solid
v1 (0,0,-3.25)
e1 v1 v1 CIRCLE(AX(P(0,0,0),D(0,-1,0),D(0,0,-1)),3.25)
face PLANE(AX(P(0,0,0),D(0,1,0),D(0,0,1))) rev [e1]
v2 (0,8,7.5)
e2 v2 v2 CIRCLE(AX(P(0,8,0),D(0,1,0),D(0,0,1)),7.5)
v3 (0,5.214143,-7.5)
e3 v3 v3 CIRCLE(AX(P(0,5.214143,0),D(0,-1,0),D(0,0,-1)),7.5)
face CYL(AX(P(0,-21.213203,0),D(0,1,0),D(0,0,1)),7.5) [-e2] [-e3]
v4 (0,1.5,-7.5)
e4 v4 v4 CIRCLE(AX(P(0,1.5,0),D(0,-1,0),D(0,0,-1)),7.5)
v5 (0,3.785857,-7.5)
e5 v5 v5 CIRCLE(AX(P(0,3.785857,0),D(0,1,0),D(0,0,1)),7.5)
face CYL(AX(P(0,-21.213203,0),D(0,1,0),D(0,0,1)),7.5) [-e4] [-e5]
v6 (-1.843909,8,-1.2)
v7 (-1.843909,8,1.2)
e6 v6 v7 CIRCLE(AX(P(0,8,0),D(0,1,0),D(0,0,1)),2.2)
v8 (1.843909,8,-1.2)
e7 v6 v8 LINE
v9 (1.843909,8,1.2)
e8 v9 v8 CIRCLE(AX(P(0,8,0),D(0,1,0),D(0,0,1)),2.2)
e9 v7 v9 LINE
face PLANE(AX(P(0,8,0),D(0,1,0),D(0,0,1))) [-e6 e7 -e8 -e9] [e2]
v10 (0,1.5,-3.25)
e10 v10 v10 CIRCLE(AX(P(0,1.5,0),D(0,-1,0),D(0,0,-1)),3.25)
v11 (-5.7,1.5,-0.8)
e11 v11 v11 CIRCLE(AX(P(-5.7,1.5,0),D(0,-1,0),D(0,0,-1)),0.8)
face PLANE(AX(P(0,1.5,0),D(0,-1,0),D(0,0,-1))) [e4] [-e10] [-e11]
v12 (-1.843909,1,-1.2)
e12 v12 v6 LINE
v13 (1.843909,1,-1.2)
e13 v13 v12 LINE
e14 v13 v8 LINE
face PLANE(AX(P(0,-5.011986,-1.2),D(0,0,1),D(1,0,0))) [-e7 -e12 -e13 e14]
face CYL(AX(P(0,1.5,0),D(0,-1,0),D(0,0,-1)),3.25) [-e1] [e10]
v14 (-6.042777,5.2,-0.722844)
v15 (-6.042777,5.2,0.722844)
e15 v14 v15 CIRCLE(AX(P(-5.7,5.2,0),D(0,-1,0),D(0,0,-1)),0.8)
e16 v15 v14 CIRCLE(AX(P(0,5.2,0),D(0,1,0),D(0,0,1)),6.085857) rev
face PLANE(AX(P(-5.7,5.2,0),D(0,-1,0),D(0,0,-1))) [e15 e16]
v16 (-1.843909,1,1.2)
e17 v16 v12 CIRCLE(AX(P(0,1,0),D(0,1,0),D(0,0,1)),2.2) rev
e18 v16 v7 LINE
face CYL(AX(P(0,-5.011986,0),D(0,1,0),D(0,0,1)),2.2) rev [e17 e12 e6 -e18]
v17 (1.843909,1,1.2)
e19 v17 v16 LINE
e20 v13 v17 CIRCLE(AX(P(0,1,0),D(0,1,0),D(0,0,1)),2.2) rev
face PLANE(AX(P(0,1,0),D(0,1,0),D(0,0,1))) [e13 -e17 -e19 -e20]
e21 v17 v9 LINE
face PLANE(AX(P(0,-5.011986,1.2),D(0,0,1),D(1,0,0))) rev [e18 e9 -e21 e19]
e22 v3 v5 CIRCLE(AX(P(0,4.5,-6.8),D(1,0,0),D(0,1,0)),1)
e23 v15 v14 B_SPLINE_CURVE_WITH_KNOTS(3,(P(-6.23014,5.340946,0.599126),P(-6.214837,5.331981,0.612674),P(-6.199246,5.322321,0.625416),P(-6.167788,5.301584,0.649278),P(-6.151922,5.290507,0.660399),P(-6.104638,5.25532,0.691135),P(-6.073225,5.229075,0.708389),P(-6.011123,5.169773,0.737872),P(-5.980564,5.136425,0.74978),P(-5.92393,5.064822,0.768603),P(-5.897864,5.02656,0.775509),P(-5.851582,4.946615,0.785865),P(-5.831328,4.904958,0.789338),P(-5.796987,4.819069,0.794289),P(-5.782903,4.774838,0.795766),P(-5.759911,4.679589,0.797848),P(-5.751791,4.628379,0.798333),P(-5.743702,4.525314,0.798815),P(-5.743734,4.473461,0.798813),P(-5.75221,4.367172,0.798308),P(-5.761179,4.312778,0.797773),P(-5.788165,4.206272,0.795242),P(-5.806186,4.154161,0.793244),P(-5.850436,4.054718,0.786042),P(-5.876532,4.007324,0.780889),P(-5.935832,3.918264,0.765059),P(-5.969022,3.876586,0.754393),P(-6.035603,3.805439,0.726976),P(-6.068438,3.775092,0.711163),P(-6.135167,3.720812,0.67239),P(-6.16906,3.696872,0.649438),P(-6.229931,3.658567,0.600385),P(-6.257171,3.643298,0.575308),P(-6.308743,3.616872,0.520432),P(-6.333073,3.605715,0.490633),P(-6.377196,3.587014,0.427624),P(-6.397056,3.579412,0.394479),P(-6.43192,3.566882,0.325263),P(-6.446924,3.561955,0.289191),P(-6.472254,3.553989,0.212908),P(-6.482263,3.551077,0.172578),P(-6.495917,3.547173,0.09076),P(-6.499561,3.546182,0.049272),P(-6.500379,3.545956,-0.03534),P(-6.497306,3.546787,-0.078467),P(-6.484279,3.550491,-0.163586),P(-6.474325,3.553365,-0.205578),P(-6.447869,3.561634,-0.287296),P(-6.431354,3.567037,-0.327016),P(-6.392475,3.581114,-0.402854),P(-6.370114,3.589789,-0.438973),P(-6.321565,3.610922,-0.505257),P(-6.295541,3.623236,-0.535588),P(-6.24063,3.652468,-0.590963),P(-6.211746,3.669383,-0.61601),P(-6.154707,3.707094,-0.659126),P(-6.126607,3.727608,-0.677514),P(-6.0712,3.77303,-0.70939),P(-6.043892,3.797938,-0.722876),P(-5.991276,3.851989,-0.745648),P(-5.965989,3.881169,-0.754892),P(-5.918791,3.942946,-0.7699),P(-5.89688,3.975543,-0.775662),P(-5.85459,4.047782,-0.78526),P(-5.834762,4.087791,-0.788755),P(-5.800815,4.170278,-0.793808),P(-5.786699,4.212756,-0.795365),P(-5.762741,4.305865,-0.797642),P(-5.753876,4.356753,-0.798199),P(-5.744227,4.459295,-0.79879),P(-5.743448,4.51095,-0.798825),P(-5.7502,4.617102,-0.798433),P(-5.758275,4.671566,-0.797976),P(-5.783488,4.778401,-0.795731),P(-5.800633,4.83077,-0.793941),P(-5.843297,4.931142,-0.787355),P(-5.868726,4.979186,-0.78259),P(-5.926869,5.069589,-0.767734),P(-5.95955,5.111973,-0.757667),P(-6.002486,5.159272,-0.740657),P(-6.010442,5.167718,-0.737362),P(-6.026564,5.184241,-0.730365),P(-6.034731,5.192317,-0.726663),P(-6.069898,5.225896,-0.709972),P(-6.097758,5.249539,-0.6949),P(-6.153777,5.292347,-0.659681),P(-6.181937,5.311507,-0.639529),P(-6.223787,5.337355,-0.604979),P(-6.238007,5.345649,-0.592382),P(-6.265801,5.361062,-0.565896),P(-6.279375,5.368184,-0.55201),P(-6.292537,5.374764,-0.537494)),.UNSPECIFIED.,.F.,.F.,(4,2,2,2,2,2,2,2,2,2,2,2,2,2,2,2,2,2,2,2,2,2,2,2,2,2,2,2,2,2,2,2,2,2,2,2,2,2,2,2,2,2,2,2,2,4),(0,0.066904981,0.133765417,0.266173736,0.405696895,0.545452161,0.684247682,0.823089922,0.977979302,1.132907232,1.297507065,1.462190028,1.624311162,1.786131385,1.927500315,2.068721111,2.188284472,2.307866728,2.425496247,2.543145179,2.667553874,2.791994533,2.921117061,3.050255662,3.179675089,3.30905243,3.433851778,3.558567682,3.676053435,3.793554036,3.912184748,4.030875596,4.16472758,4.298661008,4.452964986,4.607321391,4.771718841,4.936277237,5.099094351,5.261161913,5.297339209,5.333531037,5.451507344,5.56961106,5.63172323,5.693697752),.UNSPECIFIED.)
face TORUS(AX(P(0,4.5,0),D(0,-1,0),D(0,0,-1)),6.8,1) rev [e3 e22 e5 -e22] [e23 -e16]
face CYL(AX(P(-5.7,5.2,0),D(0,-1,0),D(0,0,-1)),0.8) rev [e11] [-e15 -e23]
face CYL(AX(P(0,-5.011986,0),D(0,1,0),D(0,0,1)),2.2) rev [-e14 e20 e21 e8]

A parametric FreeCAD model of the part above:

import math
import FreeCAD as App
import Part
import Sketcher
Q = App.Units.Quantity

doc = App.newDocument("Part")
params = doc.addObject("Spreadsheet::Sheet", "Params")
for row, (alias, value) in enumerate([
    ("sketch1_diameter", "5.5 mm"),
    ("pad1_length", "8 mm"),
    ("sketch2_radius", "2.2 mm"),
    ("pocket1_length", "7 mm"),
    ("sketch3_radius", "2 mm"),
    ("sketch3_width", "3.2 mm"),
    ("pad2_length", "3.5 mm"),
    ("sketch4_diameter", "15 mm"),
    ("sketch4_diameter2", "5.5 mm"),
    ("pad3_length", "8 mm"),
    ("sketch5_diameter", "2 mm"),
    ("sketch6_diameter", "13.6 mm"),
    ("sketch7_diameter", "15 mm"),
    ("sketch7_diameter2", "6.5 mm"),
    ("pocket2_length", "1.5 mm"),
    ("sketch8_diameter", "1.6 mm"),
    ("pocket3_length", "3.7 mm"),
    ("sketch9_radius", "2 mm"),
    ("sketch9_width", "3.2 mm"),
    ("pocket4_length", "3.5 mm"),
], start=1):
    params.set(f"A{row}", alias)
    params.set(f"B{row}", "=" + value)
    params.setAlias(f"B{row}", alias)

body = doc.addObject("PartDesign::Body", "Body")

# Sketch on XZ plane
sketch1 = body.newObject("Sketcher::SketchObject", "Sketch")
sketch1.AttachmentSupport = (doc.getObject("XZ_Plane"), [""])
sketch1.MapMode = "FlatFace"
sketch1.addGeometry(Part.Circle(App.Vector(0, 0, 0), App.Vector(0, 0, 1), 2.8), False)
sketch1.addConstraint(Sketcher.Constraint("Coincident", 0, 3, -1, 1))
sketch1.addConstraint(Sketcher.Constraint("Diameter", 0, Q("5.5 mm")))
sketch1.setExpression("Constraints[1]", "Params.sketch1_diameter")
pad1 = body.newObject("PartDesign::Pad", "Pad")
pad1.Profile = sketch1
pad1.setExpression("Length", "Params.pad1_length")
pad1.Reversed = True

# Sketch on XZ plane
sketch2 = body.newObject("Sketcher::SketchObject", "Sketch001")
sketch2.AttachmentSupport = (doc.getObject("XZ_Plane"), [""])
sketch2.MapMode = "FlatFace"
sketch2.AttachmentOffset = App.Placement(App.Vector(0, 0, -8), App.Rotation())
sketch2.addGeometry(Part.LineSegment(App.Vector(1.8, -1.2, 0), App.Vector(-1.8, -1.2, 0)), False)
sketch2.addGeometry(Part.ArcOfCircle(Part.Circle(App.Vector(0, 0, 0), App.Vector(0, 0, 1), 2.2), math.radians(147), math.radians(213)), False)
sketch2.addGeometry(Part.LineSegment(App.Vector(-1.8, 1.2, 0), App.Vector(1.8, 1.2, 0)), False)
sketch2.addGeometry(Part.ArcOfCircle(Part.Circle(App.Vector(0, 0, 0), App.Vector(0, 0, 1), 2.2), math.radians(0), math.radians(33)), False)
sketch2.addGeometry(Part.ArcOfCircle(Part.Circle(App.Vector(0, 0, 0), App.Vector(0, 0, 1), 2.2), math.radians(-33), math.radians(0)), False)
sketch2.addConstraint(Sketcher.Constraint("Coincident", 0, 2, 1, 2))
sketch2.addConstraint(Sketcher.Constraint("Coincident", 1, 1, 2, 1))
sketch2.addConstraint(Sketcher.Constraint("Coincident", 2, 2, 3, 2))
sketch2.addConstraint(Sketcher.Constraint("Tangent", 3, 1, 4, 2))
sketch2.addConstraint(Sketcher.Constraint("Coincident", 4, 1, 0, 1))
sketch2.addConstraint(Sketcher.Constraint("Horizontal", 0))
sketch2.addConstraint(Sketcher.Constraint("Horizontal", 2))
sketch2.addConstraint(Sketcher.Constraint("Coincident", 1, 3, -1, 1))
sketch2.addConstraint(Sketcher.Constraint("Coincident", 3, 3, -1, 1))
sketch2.addConstraint(Sketcher.Constraint("Equal", 1, 3))
sketch2.addConstraint(Sketcher.Constraint("Equal", 3, 4))
sketch2.addConstraint(Sketcher.Constraint("PointOnObject", 3, 1, -1))
sketch2.addConstraint(Sketcher.Constraint("Vertical", 0, 2, 1, 1))
sketch2.addConstraint(Sketcher.Constraint("Radius", 1, Q("2.2 mm")))
sketch2.addConstraint(Sketcher.Constraint("DistanceY", 0, 2, -1, 1, Q("1.2 mm")))
sketch2.setExpression("Constraints[13]", "Params.sketch2_radius")
pocket1 = body.newObject("PartDesign::Pocket", "Pocket")
pocket1.Profile = sketch2
pocket1.setExpression("Length", "Params.pocket1_length")
pocket1.Reversed = True

# Sketch on XZ plane
sketch3 = body.newObject("Sketcher::SketchObject", "Sketch002")
sketch3.AttachmentSupport = (doc.getObject("XZ_Plane"), [""])
sketch3.MapMode = "FlatFace"
sketch3.AttachmentOffset = App.Placement(App.Vector(0, 0, -8), App.Rotation())
sketch3.addGeometry(Part.ArcOfCircle(Part.Circle(App.Vector(0, 0, 0), App.Vector(0, 0, 1), 2), math.radians(-143), math.radians(-37)), False)
sketch3.addGeometry(Part.LineSegment(App.Vector(-1.6, -1.2, 0), App.Vector(1.6, -1.2, 0)), False)
sketch3.addGeometry(Part.ArcOfCircle(Part.Circle(App.Vector(0, 0, 0), App.Vector(0, 0, 1), 2), math.radians(37), math.radians(143)), False)
sketch3.addGeometry(Part.LineSegment(App.Vector(1.6, 1.2, 0), App.Vector(-1.6, 1.2, 0)), False)
sketch3.addConstraint(Sketcher.Constraint("Coincident", 0, 1, 1, 1))
sketch3.addConstraint(Sketcher.Constraint("Coincident", 1, 2, 0, 2))
sketch3.addConstraint(Sketcher.Constraint("Coincident", 2, 1, 3, 1))
sketch3.addConstraint(Sketcher.Constraint("Coincident", 3, 2, 2, 2))
sketch3.addConstraint(Sketcher.Constraint("Horizontal", 1))
sketch3.addConstraint(Sketcher.Constraint("Horizontal", 3))
sketch3.addConstraint(Sketcher.Constraint("Coincident", 0, 3, -1, 1))
sketch3.addConstraint(Sketcher.Constraint("Coincident", 2, 3, -1, 1))
sketch3.addConstraint(Sketcher.Constraint("Equal", 0, 2))
sketch3.addConstraint(Sketcher.Constraint("Vertical", 1, 2, 2, 1))
sketch3.addConstraint(Sketcher.Constraint("Radius", 0, Q("2 mm")))
sketch3.addConstraint(Sketcher.Constraint("DistanceX", 1, 1, 1, 2, Q("3.2 mm")))
sketch3.setExpression("Constraints[10]", "Params.sketch3_radius")
sketch3.setExpression("Constraints[11]", "Params.sketch3_width")
pad2 = body.newObject("PartDesign::Pad", "Pad001")
pad2.Profile = sketch3
pad2.setExpression("Length", "Params.pad2_length")
pad2.Reversed = True

# Sketch on XZ plane
sketch4 = body.newObject("Sketcher::SketchObject", "Sketch003")
sketch4.AttachmentSupport = (doc.getObject("XZ_Plane"), [""])
sketch4.MapMode = "FlatFace"
sketch4.addGeometry(Part.Circle(App.Vector(0, 0, 0), App.Vector(0, 0, 1), 7.5), False)
sketch4.addGeometry(Part.Circle(App.Vector(0, 0, 0), App.Vector(0, 0, 1), 2.8), False)
sketch4.addConstraint(Sketcher.Constraint("Coincident", 0, 3, -1, 1))
sketch4.addConstraint(Sketcher.Constraint("Coincident", 1, 3, -1, 1))
sketch4.addConstraint(Sketcher.Constraint("Diameter", 0, Q("15 mm")))
sketch4.addConstraint(Sketcher.Constraint("Diameter", 1, Q("5.5 mm")))
sketch4.setExpression("Constraints[2]", "Params.sketch4_diameter")
sketch4.setExpression("Constraints[3]", "Params.sketch4_diameter2")
pad3 = body.newObject("PartDesign::Pad", "Pad002")
pad3.Profile = sketch4
pad3.setExpression("Length", "Params.pad3_length")
pad3.Reversed = True

# Sketch on XY plane
sketch5 = body.newObject("Sketcher::SketchObject", "Sketch004")
sketch5.AttachmentSupport = (doc.getObject("XY_Plane"), [""])
sketch5.MapMode = "FlatFace"
sketch5.addGeometry(Part.Circle(App.Vector(-6.8, 4.5, 0), App.Vector(0, 0, 1), 1), False)
sketch5.addConstraint(Sketcher.Constraint("Diameter", 0, Q("2 mm")))
sketch5.addConstraint(Sketcher.Constraint("DistanceX", 0, 3, -1, 1, Q("6.8 mm")))
sketch5.addConstraint(Sketcher.Constraint("DistanceY", -1, 1, 0, 3, Q("4.5 mm")))
sketch5.setExpression("Constraints[0]", "Params.sketch5_diameter")

# Sketch on XZ plane
sketch6 = body.newObject("Sketcher::SketchObject", "Sketch005")
sketch6.AttachmentSupport = (doc.getObject("XZ_Plane"), [""])
sketch6.MapMode = "FlatFace"
sketch6.AttachmentOffset = App.Placement(App.Vector(0, 0, -4.5), App.Rotation())
sketch6.addGeometry(Part.Circle(App.Vector(0, 0, 0), App.Vector(0, 0, 1), 7), False)
sketch6.addConstraint(Sketcher.Constraint("Coincident", 0, 3, -1, 1))
sketch6.addConstraint(Sketcher.Constraint("Diameter", 0, Q("13.6 mm")))
sketch6.setExpression("Constraints[1]", "Params.sketch6_diameter")
doc.recompute()

subtractivepipe = body.newObject("PartDesign::SubtractivePipe", "SubtractivePipe")
subtractivepipe.Profile = sketch5
subtractivepipe.Spine = (sketch6, ["Edge1"])

# Sketch on XZ plane
sketch7 = body.newObject("Sketcher::SketchObject", "Sketch006")
sketch7.AttachmentSupport = (doc.getObject("XZ_Plane"), [""])
sketch7.MapMode = "FlatFace"
sketch7.addGeometry(Part.Circle(App.Vector(0, 0, 0), App.Vector(0, 0, 1), 7.5), False)
sketch7.addGeometry(Part.Circle(App.Vector(0, 0, 0), App.Vector(0, 0, 1), 3.2), False)
sketch7.addConstraint(Sketcher.Constraint("Coincident", 0, 3, -1, 1))
sketch7.addConstraint(Sketcher.Constraint("Coincident", 1, 3, -1, 1))
sketch7.addConstraint(Sketcher.Constraint("Diameter", 0, Q("15 mm")))
sketch7.addConstraint(Sketcher.Constraint("Diameter", 1, Q("6.5 mm")))
sketch7.setExpression("Constraints[2]", "Params.sketch7_diameter")
sketch7.setExpression("Constraints[3]", "Params.sketch7_diameter2")
pocket2 = body.newObject("PartDesign::Pocket", "Pocket001")
pocket2.Profile = sketch7
pocket2.setExpression("Length", "Params.pocket2_length")

# Sketch on XZ plane
sketch8 = body.newObject("Sketcher::SketchObject", "Sketch007")
sketch8.AttachmentSupport = (doc.getObject("XZ_Plane"), [""])
sketch8.MapMode = "FlatFace"
sketch8.AttachmentOffset = App.Placement(App.Vector(0, 0, -1.5), App.Rotation())
sketch8.addGeometry(Part.Circle(App.Vector(-5.7, 0, 0), App.Vector(0, 0, 1), 0.8), False)
sketch8.addConstraint(Sketcher.Constraint("PointOnObject", 0, 3, -1))
sketch8.addConstraint(Sketcher.Constraint("Diameter", 0, Q("1.6 mm")))
sketch8.addConstraint(Sketcher.Constraint("DistanceX", 0, 3, -1, 1, Q("5.7 mm")))
sketch8.setExpression("Constraints[1]", "Params.sketch8_diameter")
pocket3 = body.newObject("PartDesign::Pocket", "Pocket002")
pocket3.Profile = sketch8
pocket3.setExpression("Length", "Params.pocket3_length")

# Sketch on XZ plane
sketch9 = body.newObject("Sketcher::SketchObject", "Sketch008")
sketch9.AttachmentSupport = (doc.getObject("XZ_Plane"), [""])
sketch9.MapMode = "FlatFace"
sketch9.AttachmentOffset = App.Placement(App.Vector(0, 0, -8), App.Rotation())
sketch9.addGeometry(Part.LineSegment(App.Vector(1.6, 1.2, 0), App.Vector(-1.6, 1.2, 0)), False)
sketch9.addGeometry(Part.ArcOfCircle(Part.Circle(App.Vector(0, 0, 0), App.Vector(0, 0, 1), 2), math.radians(37), math.radians(143)), False)
sketch9.addGeometry(Part.LineSegment(App.Vector(-1.6, -1.2, 0), App.Vector(1.6, -1.2, 0)), False)
sketch9.addGeometry(Part.ArcOfCircle(Part.Circle(App.Vector(0, 0, 0), App.Vector(0, 0, 1), 2), math.radians(-143), math.radians(-37)), False)
sketch9.addConstraint(Sketcher.Constraint("Coincident", 0, 1, 1, 1))
sketch9.addConstraint(Sketcher.Constraint("Coincident", 1, 2, 0, 2))
sketch9.addConstraint(Sketcher.Constraint("Coincident", 2, 1, 3, 1))
sketch9.addConstraint(Sketcher.Constraint("Coincident", 3, 2, 2, 2))
sketch9.addConstraint(Sketcher.Constraint("Horizontal", 0))
sketch9.addConstraint(Sketcher.Constraint("Horizontal", 2))
sketch9.addConstraint(Sketcher.Constraint("Coincident", 1, 3, -1, 1))
sketch9.addConstraint(Sketcher.Constraint("Coincident", 3, 3, -1, 1))
sketch9.addConstraint(Sketcher.Constraint("Equal", 1, 3))
sketch9.addConstraint(Sketcher.Constraint("Vertical", 1, 2, 2, 1))
sketch9.addConstraint(Sketcher.Constraint("Radius", 1, Q("2 mm")))
sketch9.addConstraint(Sketcher.Constraint("DistanceX", 0, 2, 0, 1, Q("3.2 mm")))
sketch9.setExpression("Constraints[10]", "Params.sketch9_radius")
sketch9.setExpression("Constraints[11]", "Params.sketch9_width")
pocket4 = body.newObject("PartDesign::Pocket", "Pocket003")
pocket4.Profile = sketch9
pocket4.setExpression("Length", "Params.pocket4_length")

doc.recompute()
